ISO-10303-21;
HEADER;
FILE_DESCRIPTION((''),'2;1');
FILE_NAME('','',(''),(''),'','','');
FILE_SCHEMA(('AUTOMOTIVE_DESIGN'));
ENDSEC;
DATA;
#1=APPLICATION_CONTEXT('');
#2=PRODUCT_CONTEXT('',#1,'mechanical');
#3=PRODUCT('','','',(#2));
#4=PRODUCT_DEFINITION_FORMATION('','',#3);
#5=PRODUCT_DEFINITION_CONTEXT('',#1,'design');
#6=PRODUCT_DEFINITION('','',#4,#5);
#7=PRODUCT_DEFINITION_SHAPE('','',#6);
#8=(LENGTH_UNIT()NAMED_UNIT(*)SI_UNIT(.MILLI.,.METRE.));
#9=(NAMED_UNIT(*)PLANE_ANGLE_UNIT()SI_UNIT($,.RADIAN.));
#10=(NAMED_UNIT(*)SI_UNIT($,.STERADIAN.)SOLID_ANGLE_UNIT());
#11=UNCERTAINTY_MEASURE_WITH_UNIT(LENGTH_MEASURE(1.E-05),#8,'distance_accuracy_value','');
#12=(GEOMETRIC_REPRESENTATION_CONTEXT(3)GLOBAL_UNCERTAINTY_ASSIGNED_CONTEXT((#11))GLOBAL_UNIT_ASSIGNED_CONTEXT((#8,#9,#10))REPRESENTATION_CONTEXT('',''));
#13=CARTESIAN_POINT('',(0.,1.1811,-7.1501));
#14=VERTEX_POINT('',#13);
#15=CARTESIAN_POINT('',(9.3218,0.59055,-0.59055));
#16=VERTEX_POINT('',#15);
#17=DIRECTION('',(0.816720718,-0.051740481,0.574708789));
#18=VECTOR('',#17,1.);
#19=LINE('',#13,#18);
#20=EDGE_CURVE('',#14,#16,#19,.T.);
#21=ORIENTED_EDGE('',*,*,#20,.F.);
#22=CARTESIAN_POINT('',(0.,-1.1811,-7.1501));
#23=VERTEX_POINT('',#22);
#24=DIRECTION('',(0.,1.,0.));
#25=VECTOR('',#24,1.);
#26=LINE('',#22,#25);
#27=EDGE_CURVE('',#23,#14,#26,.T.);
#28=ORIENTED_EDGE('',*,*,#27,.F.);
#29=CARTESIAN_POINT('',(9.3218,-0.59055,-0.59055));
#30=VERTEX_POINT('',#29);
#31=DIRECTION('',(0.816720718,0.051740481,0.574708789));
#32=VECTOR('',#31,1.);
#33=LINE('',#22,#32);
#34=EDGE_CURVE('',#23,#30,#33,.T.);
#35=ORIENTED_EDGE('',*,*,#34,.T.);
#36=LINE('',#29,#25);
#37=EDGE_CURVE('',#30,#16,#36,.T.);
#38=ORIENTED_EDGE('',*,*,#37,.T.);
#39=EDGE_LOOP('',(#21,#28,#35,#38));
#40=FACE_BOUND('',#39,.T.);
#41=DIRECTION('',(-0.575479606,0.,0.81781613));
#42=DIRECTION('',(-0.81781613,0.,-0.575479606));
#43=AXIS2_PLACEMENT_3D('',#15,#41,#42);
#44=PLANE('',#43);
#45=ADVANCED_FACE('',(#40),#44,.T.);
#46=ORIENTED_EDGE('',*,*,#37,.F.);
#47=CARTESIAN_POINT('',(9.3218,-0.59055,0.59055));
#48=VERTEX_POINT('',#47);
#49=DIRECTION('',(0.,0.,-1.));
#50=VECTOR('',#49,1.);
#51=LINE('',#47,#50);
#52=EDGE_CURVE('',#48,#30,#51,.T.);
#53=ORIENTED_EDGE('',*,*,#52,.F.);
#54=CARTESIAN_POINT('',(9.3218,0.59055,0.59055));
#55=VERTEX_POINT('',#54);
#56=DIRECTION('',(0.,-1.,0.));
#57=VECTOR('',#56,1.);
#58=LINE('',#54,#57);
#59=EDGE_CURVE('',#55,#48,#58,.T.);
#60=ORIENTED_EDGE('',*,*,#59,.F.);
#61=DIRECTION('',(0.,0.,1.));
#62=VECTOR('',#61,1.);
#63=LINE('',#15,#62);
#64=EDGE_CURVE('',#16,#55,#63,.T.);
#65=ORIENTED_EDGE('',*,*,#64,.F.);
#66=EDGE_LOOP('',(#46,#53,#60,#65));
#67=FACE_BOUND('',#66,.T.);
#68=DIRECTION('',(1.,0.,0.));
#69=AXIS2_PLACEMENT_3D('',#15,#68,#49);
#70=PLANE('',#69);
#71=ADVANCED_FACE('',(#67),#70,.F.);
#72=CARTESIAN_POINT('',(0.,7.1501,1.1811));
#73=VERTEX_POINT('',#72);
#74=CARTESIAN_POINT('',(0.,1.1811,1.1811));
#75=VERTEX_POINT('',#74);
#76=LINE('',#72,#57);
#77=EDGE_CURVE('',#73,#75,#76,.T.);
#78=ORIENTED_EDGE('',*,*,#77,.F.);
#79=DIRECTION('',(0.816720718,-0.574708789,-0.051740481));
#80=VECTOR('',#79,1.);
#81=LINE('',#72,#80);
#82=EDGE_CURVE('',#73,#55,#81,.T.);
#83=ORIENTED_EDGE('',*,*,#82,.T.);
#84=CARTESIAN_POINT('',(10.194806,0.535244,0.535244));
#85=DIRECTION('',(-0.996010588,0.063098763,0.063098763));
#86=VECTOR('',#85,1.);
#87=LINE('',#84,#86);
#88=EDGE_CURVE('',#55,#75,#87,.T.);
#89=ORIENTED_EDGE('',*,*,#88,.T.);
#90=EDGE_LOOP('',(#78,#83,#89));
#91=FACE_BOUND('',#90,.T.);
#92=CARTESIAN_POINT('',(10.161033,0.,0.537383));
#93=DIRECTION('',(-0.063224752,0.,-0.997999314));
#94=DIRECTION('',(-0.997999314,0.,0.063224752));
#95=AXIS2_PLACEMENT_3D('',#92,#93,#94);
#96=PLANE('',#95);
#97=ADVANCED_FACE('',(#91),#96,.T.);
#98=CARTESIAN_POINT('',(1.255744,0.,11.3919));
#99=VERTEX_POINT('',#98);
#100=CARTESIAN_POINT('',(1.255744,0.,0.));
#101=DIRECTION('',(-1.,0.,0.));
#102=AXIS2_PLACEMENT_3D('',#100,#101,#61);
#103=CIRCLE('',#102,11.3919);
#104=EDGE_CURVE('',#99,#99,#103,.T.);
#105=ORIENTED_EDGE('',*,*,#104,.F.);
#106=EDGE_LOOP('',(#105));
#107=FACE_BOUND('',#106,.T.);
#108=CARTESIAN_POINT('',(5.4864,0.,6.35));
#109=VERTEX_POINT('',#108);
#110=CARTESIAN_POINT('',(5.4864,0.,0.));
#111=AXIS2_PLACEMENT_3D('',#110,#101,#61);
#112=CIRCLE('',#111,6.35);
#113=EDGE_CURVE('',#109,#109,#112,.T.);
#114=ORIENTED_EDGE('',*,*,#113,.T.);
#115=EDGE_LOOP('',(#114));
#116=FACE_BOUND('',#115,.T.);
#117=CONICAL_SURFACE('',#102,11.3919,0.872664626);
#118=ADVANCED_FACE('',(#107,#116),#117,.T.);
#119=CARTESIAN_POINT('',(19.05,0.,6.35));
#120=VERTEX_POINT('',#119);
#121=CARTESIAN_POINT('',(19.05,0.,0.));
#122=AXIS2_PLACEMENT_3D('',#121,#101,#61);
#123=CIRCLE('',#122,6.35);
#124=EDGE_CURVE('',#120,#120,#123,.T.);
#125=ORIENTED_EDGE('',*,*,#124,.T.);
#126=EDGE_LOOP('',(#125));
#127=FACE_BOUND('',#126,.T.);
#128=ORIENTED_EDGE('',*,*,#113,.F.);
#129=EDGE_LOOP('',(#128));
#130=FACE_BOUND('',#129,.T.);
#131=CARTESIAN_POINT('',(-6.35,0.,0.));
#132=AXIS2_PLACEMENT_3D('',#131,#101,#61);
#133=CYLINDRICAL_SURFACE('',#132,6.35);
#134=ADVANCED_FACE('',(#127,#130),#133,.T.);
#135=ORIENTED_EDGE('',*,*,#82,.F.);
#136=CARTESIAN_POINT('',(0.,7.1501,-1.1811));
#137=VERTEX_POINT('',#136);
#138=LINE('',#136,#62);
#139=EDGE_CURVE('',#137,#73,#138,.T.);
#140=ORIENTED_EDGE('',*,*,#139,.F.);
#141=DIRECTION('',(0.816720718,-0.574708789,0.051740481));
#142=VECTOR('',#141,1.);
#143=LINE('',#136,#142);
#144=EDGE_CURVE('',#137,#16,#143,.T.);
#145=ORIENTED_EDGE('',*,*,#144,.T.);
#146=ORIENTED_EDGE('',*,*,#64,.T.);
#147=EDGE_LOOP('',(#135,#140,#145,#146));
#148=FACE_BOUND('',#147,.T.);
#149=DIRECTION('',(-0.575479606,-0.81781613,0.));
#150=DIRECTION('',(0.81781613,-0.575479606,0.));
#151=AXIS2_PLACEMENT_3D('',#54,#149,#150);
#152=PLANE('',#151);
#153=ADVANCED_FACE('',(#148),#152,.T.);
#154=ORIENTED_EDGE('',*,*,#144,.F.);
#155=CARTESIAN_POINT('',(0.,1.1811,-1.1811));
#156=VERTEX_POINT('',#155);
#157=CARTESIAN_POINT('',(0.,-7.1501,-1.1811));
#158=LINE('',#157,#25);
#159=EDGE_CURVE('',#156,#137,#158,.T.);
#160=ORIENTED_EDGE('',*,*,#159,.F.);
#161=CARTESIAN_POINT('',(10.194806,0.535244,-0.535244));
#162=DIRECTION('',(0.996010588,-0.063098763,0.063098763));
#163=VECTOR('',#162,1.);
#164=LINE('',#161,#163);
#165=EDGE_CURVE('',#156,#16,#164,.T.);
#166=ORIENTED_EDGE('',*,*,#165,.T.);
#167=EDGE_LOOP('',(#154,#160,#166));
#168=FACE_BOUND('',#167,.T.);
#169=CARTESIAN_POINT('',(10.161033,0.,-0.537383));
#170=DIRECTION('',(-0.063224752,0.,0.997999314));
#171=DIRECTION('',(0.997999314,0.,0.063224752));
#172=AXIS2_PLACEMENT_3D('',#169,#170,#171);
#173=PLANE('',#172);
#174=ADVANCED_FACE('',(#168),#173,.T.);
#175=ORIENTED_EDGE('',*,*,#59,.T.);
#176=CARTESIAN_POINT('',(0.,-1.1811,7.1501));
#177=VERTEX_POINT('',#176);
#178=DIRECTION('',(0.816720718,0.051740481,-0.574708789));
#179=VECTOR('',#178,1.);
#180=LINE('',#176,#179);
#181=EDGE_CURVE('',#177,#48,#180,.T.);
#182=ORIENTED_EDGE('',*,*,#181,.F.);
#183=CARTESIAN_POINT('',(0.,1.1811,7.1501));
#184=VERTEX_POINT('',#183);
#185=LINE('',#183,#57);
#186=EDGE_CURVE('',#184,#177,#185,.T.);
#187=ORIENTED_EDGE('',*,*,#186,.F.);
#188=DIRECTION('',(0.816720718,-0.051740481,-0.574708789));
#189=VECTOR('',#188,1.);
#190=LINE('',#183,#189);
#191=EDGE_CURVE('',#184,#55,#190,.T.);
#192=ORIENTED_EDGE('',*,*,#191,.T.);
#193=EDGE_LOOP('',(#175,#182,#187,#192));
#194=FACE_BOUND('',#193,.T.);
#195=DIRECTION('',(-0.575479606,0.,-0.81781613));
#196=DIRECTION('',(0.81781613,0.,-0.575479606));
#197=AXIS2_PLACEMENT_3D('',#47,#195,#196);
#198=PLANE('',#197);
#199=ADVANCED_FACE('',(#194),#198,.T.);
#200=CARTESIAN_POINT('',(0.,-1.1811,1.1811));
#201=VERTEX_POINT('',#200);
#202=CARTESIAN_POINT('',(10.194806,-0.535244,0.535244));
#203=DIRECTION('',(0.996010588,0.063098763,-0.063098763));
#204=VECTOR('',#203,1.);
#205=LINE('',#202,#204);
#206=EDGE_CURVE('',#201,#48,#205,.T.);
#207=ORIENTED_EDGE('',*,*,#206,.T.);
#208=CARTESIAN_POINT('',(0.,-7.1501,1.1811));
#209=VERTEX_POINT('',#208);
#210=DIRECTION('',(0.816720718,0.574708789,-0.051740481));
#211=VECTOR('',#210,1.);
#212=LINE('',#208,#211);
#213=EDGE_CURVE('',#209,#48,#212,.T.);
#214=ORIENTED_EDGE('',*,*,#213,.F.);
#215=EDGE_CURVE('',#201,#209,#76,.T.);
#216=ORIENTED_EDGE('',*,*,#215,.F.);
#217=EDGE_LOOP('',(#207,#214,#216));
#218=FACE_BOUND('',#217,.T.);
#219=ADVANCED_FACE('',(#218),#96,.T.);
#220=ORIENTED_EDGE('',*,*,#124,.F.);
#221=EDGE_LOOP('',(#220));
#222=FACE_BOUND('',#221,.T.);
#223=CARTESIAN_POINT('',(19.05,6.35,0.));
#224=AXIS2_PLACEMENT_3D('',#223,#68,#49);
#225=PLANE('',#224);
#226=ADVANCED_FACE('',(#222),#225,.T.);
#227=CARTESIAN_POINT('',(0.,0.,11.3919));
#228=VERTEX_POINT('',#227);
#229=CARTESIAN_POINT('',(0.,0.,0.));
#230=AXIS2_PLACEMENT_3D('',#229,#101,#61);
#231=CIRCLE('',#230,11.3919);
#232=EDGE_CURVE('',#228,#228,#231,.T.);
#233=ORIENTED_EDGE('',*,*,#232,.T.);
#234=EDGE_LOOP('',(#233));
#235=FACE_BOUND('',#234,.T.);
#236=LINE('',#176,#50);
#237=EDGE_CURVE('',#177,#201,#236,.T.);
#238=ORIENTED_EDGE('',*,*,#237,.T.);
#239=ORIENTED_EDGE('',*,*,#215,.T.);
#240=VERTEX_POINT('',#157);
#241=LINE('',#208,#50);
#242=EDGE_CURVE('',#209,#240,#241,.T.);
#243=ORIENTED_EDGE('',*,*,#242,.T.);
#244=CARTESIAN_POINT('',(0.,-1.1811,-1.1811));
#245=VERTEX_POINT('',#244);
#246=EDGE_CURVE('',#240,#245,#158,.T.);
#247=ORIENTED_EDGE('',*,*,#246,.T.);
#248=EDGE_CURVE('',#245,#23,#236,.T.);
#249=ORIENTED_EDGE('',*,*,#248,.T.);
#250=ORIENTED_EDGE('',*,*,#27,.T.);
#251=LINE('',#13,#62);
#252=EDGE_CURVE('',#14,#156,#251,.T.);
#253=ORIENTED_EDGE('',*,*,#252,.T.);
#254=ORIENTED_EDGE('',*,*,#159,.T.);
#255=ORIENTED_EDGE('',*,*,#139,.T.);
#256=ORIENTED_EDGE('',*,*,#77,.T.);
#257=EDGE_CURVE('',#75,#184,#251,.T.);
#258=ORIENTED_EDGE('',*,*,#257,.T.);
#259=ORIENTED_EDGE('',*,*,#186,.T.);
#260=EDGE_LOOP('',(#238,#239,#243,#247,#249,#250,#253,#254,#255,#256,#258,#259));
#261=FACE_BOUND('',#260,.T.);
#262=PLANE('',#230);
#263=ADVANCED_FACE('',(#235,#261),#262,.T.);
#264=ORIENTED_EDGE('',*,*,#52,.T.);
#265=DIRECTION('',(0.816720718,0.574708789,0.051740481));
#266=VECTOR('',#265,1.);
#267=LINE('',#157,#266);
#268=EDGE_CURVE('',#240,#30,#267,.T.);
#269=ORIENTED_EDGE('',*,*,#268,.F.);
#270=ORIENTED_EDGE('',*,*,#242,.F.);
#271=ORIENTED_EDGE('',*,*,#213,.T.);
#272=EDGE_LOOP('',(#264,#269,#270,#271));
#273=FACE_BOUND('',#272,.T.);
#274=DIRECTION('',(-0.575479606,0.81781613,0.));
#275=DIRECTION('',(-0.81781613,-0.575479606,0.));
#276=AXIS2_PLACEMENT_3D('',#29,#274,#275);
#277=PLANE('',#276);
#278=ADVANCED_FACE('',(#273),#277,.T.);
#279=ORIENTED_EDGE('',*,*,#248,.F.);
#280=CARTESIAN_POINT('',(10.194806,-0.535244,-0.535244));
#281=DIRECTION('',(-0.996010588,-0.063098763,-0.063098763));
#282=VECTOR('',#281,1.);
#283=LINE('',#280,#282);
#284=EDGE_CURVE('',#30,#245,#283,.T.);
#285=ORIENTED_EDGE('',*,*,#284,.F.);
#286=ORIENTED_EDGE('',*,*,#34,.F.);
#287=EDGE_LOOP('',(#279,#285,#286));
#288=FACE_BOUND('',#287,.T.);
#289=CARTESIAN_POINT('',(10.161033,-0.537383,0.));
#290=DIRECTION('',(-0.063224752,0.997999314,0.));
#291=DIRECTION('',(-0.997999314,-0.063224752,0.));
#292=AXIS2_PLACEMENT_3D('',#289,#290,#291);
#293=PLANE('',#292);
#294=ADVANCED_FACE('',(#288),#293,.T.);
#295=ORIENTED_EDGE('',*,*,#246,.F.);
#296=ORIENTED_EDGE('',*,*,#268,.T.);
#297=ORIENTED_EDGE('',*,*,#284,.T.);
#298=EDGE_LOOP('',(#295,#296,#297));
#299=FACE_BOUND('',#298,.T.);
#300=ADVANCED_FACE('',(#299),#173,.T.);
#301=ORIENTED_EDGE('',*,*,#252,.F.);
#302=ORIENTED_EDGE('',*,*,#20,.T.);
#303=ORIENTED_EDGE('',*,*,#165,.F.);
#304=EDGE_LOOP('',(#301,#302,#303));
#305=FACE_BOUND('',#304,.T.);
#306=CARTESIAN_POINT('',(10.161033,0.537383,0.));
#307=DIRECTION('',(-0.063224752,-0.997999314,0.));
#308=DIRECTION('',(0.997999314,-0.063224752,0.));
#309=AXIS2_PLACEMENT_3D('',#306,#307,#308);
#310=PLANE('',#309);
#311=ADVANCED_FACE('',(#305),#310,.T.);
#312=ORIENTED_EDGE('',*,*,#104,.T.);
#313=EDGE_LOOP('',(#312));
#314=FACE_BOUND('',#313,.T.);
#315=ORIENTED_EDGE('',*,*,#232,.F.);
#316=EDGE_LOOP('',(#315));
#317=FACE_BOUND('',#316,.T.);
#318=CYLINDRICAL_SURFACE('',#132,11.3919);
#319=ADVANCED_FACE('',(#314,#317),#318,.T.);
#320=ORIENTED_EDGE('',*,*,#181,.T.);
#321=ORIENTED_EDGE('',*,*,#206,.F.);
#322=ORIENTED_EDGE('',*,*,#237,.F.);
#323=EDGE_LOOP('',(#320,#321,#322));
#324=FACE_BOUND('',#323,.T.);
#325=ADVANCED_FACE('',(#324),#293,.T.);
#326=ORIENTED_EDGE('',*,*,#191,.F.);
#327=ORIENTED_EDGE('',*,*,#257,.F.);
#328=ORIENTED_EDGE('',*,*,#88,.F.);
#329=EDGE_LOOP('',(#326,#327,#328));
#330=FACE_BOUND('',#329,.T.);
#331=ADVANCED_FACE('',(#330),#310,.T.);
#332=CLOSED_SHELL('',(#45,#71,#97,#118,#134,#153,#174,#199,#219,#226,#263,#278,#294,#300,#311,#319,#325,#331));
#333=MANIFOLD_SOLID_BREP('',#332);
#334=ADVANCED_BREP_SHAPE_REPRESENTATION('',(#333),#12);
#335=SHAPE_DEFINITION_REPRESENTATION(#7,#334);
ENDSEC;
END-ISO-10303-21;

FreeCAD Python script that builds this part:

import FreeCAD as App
import Part
import Sketcher
Q = App.Units.Quantity


def add_polygon(sketch, points):
    """Adds a closed chain of lines whose ends are joined by coincident constraints."""
    first, n = sketch.GeometryCount, len(points)
    for a, b in zip(points, points[1:] + points[:1]):
        sketch.addGeometry(Part.LineSegment(App.Vector(*a, 0), App.Vector(*b, 0)), False)
    for i in range(n):
        sketch.addConstraint(Sketcher.Constraint("Coincident", first + i, 2, first + (i + 1) % n, 1))

doc = App.newDocument("Part")
body = doc.addObject("PartDesign::Body", "Body")

# Sketch on XY plane
sketch1 = body.newObject("Sketcher::SketchObject", "Sketch")
sketch1.AttachmentSupport = (doc.getObject("XY_Plane"), [""])
sketch1.MapMode = "FlatFace"
add_polygon(sketch1, [(0, 11.4), (0, 0), (19.1, 0), (19.1, 6.3), (5.5, 6.3), (1.3, 11.4)])  # lines 0-5
sketch1.addConstraint(Sketcher.Constraint("Vertical", 0))
sketch1.addConstraint(Sketcher.Constraint("Horizontal", 1))
sketch1.addConstraint(Sketcher.Constraint("Vertical", 2))
sketch1.addConstraint(Sketcher.Constraint("Horizontal", 3))
sketch1.addConstraint(Sketcher.Constraint("Horizontal", 5))
sketch1.addConstraint(Sketcher.Constraint("Coincident", 0, 2, -1, 1))
sketch1.addConstraint(Sketcher.Constraint("Angle", 4, Q("130 deg")))
sketch1.addConstraint(Sketcher.Constraint("DistanceX", 1, 1, 1, 2, Q("0.75 in")))
sketch1.addConstraint(Sketcher.Constraint("DistanceY", 2, 1, 2, 2, Q("0.25 in")))
sketch1.addConstraint(Sketcher.Constraint("DistanceX", 3, 2, 3, 1, Q("0.534 in")))
sketch1.addConstraint(Sketcher.Constraint("DistanceY", 0, 2, 0, 1, Q("0.4485 in")))
revolution = body.newObject("PartDesign::Revolution", "Revolution")
revolution.Profile = sketch1
revolution.ReferenceAxis = (sketch1, ["H_Axis"])
revolution.Angle = 360

# Sketch on YZ plane
sketch2 = body.newObject("Sketcher::SketchObject", "Sketch001")
sketch2.AttachmentSupport = (doc.getObject("YZ_Plane"), [""])
sketch2.MapMode = "FlatFace"
add_polygon(sketch2, [(7.2, 1.2), (7.2, -1.2), (-7.2, -1.2), (-7.2, 1.2)])  # lines 0-3
sketch2.addConstraint(Sketcher.Constraint("Vertical", 0))
sketch2.addConstraint(Sketcher.Constraint("Horizontal", 1))
sketch2.addConstraint(Sketcher.Constraint("Vertical", 2))
sketch2.addConstraint(Sketcher.Constraint("Horizontal", 3))
sketch2.addConstraint(Sketcher.Constraint("Symmetric", 0, 2, 2, 2, -1, 1))
sketch2.addConstraint(Sketcher.Constraint("DistanceX", 1, 2, 1, 1, Q("0.563 in")))
sketch2.addConstraint(Sketcher.Constraint("DistanceY", 0, 2, 0, 1, Q("0.093 in")))

# Sketch on YZ plane
sketch3 = body.newObject("Sketcher::SketchObject", "Sketch002")
sketch3.AttachmentSupport = (doc.getObject("YZ_Plane"), [""])
sketch3.MapMode = "FlatFace"
sketch3.AttachmentOffset = App.Placement(App.Vector(0, 0, 0.367 * 25.4), App.Rotation())
add_polygon(sketch3, [(0.6, 0.6), (0.6, -0.6), (-0.6, -0.6), (-0.6, 0.6)])  # lines 0-3
sketch3.addConstraint(Sketcher.Constraint("Vertical", 0))
sketch3.addConstraint(Sketcher.Constraint("Horizontal", 1))
sketch3.addConstraint(Sketcher.Constraint("Vertical", 2))
sketch3.addConstraint(Sketcher.Constraint("Horizontal", 3))
sketch3.addConstraint(Sketcher.Constraint("Symmetric", 0, 2, 2, 2, -1, 1))
sketch3.addConstraint(Sketcher.Constraint("Equal", 3, 0))
sketch3.addConstraint(Sketcher.Constraint("DistanceX", 1, 2, 1, 1, Q("0.0465 in")))

subtractiveloft = body.newObject("PartDesign::SubtractiveLoft", "SubtractiveLoft")
subtractiveloft.Profile = sketch2
subtractiveloft.Sections = [sketch3]
doc.recompute()

polarpattern = body.newObject("PartDesign::PolarPattern", "PolarPattern")
polarpattern.Originals = [subtractiveloft]
polarpattern.Axis = (doc.getObject("X_Axis"), [""])
polarpattern.Angle = 90
polarpattern.Occurrences = 2
body.Tip = polarpattern

doc.recompute()
